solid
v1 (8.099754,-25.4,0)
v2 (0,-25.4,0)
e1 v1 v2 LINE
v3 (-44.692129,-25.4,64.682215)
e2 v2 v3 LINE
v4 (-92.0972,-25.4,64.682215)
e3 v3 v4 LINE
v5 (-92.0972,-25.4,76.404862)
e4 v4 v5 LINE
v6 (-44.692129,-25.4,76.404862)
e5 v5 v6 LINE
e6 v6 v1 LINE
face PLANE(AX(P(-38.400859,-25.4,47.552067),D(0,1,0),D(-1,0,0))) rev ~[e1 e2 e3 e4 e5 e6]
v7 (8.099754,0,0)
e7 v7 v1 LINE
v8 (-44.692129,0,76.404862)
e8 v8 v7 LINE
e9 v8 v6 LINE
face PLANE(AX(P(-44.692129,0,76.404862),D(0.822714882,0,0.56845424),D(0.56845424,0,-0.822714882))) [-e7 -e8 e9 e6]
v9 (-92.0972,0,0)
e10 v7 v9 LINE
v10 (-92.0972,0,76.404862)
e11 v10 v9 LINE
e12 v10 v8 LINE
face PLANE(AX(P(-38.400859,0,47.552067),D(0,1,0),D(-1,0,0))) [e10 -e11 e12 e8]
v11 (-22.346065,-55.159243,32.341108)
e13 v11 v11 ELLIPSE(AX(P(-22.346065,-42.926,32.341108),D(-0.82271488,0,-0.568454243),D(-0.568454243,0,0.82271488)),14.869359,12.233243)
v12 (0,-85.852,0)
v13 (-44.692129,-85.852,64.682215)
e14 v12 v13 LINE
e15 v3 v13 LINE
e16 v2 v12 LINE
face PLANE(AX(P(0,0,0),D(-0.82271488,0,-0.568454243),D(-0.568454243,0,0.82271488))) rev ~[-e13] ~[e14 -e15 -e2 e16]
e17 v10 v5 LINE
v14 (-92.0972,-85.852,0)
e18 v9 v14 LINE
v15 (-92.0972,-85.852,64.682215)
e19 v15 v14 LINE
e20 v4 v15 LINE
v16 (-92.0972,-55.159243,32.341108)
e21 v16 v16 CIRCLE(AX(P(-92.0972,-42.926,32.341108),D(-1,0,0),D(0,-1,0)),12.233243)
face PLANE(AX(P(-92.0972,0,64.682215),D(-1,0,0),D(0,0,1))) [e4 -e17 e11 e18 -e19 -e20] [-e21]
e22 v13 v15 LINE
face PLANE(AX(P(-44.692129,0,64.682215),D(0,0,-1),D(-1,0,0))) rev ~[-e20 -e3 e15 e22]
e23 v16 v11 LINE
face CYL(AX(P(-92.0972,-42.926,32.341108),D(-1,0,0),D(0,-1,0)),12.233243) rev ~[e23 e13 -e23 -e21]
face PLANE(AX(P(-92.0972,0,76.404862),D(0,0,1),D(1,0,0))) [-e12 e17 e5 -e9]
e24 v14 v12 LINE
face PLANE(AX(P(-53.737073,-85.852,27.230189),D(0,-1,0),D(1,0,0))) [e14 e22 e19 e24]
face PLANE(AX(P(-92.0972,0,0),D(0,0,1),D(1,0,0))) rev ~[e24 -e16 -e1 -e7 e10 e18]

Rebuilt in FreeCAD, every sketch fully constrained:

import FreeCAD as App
import Part
import Sketcher
Q = App.Units.Quantity

doc = App.newDocument("Part")
params = doc.addObject("Spreadsheet::Sheet", "Params")
for row, (alias, value) in enumerate([
    ("pad1_length", "3.38 in"),
    ("pad2_length", "1 in"),
], start=1):
    params.set(f"A{row}", alias)
    params.set(f"B{row}", "=" + value)
    params.setAlias(f"B{row}", alias)

body = doc.addObject("PartDesign::Body", "Body")

# Sketch on XZ plane
sketch1 = body.newObject("Sketcher::SketchObject", "Sketch")
sketch1.AttachmentSupport = (doc.getObject("XZ_Plane"), [""])
sketch1.MapMode = "FlatFace"
sketch1.addGeometry([
    Part.LineSegment(App.Vector(-92, 0, 0), App.Vector(0, 0, 0)),
    Part.LineSegment(App.Vector(0, 0, 0), App.Vector(-45, 65, 0)),
    Part.LineSegment(App.Vector(-45, 65, 0), App.Vector(-92, 65, 0)),
    Part.LineSegment(App.Vector(-92, 65, 0), App.Vector(-92, 0, 0)),
], False)
sketch1.addConstraint([
    Sketcher.Constraint("Coincident", 0, 2, 1, 1),
    Sketcher.Constraint("Coincident", 1, 2, 2, 1),
    Sketcher.Constraint("Coincident", 2, 2, 3, 1),
    Sketcher.Constraint("Coincident", 3, 2, 0, 1),
    Sketcher.Constraint("Horizontal", 0),
    Sketcher.Constraint("Horizontal", 2),
    Sketcher.Constraint("Vertical", 3),
    Sketcher.Constraint("Coincident", 0, 2, -1, 1),
    Sketcher.Constraint("DistanceX", 0, 1, 0, 2, Q("92.0972 mm")),
    Sketcher.Constraint("DistanceX", 2, 2, 2, 1, Q("47.405071 mm")),
    Sketcher.Constraint("Distance", 1, Q("78.620451 mm")),
])
pad1 = body.newObject("PartDesign::Pad", "Pad")
pad1.Profile = sketch1
pad1.setExpression("Length", "Params.pad1_length")

# Sketch on XZ plane
sketch2 = body.newObject("Sketcher::SketchObject", "Sketch001")
sketch2.AttachmentSupport = (doc.getObject("XZ_Plane"), [""])
sketch2.MapMode = "FlatFace"
sketch2.addGeometry([
    Part.LineSegment(App.Vector(-45, 65, 0), App.Vector(-92, 65, 0)),  # 0
    Part.LineSegment(App.Vector(-92, 65, 0), App.Vector(-92, 76, 0)),  # 1
    Part.LineSegment(App.Vector(-92, 76, 0), App.Vector(-45, 76, 0)),  # 2
    Part.LineSegment(App.Vector(-45, 76, 0), App.Vector(8, 0, 0)),  # 3
    Part.LineSegment(App.Vector(8, 0, 0), App.Vector(0, 0, 0)),  # 4
    Part.LineSegment(App.Vector(0, 0, 0), App.Vector(-45, 65, 0)),  # 5
], False)
sketch2.addConstraint([
    Sketcher.Constraint("Coincident", 0, 2, 1, 1),
    Sketcher.Constraint("Coincident", 1, 2, 2, 1),
    Sketcher.Constraint("Coincident", 2, 2, 3, 1),
    Sketcher.Constraint("Coincident", 3, 2, 4, 1),
    Sketcher.Constraint("Coincident", 4, 2, 5, 1),
    Sketcher.Constraint("Coincident", 5, 2, 0, 1),
    Sketcher.Constraint("Horizontal", 0),
    Sketcher.Constraint("Vertical", 1),
    Sketcher.Constraint("Horizontal", 2),
    Sketcher.Constraint("Horizontal", 4),
    Sketcher.Constraint("Coincident", 4, 2, -1, 1),
    Sketcher.Constraint("Parallel", 3, 5),
    Sketcher.Constraint("Vertical", 2, 2, 5, 2),
    Sketcher.Constraint("DistanceX", 0, 2, 0, 1, Q("47.405071 mm")),
    Sketcher.Constraint("DistanceX", 0, 2, -1, 1, Q("92.0972 mm")),
    Sketcher.Constraint("Distance", 5, Q("78.620451 mm")),
    Sketcher.Constraint("DistanceX", 4, 2, 4, 1, Q("8.099754 mm")),
])
pad2 = body.newObject("PartDesign::Pad", "Pad001")
pad2.Profile = sketch2
pad2.setExpression("Length", "Params.pad2_length")

# Sketch on YZ plane
sketch3 = body.newObject("Sketcher::SketchObject", "Sketch002")
sketch3.AttachmentSupport = (doc.getObject("YZ_Plane"), [""])
sketch3.MapMode = "FlatFace"
sketch3.AttachmentOffset = App.Placement(App.Vector(0, 0, -92.0972), App.Rotation())
sketch3.addGeometry(Part.Circle(App.Vector(-43, 32, 0), App.Vector(0, 0, 1), 12), False)
sketch3.addConstraint([
    Sketcher.Constraint("DistanceX", 0, 3, -1, 1, Q("1.69 in")),
    Sketcher.Constraint("Diameter", 0, Q("24.466486 mm")),
    Sketcher.Constraint("DistanceY", -1, 1, 0, 3, Q("32.341108 mm")),
])
pocket1 = body.newObject("PartDesign::Pocket", "Pocket")
pocket1.Profile = sketch3
pocket1.Type = "ThroughAll"
pocket1.Reversed = True

doc.recompute()
